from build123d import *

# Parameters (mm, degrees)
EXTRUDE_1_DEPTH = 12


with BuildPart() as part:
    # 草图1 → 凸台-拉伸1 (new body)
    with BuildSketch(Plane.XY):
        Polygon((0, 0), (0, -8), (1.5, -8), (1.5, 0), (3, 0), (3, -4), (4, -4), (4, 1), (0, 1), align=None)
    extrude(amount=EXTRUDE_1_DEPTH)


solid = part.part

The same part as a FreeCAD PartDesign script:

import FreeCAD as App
import Part
import Sketcher

V = App.Vector


def add_polygon(sketch, points):
    """Adds a closed chain of lines whose ends are joined by coincident constraints."""
    first, n = sketch.GeometryCount, len(points)
    for a, b in zip(points, points[1:] + points[:1]):
        sketch.addGeometry(Part.LineSegment(App.Vector(*a, 0), App.Vector(*b, 0)), False)
    for i in range(n):
        sketch.addConstraint(Sketcher.Constraint("Coincident", first + i, 2, first + (i + 1) % n, 1))

doc = App.newDocument("Part")
params = doc.addObject("Spreadsheet::Sheet", "Params")
for row, (alias, value) in enumerate([
    ("sketch1_width", "1 mm"),
    ("sketch1_width2", "4 mm"),
    ("sketch1_height", "8 mm"),
    ("sketch1_height2", "5 mm"),
    ("pad1_length", "12 mm"),
], start=1):
    params.set(f"A{row}", alias)
    params.set(f"B{row}", "=" + value)
    params.setAlias(f"B{row}", alias)

body = doc.addObject("PartDesign::Body", "Body")

# Sketch on XY plane
sketch1 = body.newObject("Sketcher::SketchObject", "Sketch")
sketch1.AttachmentSupport = (doc.getObject("XY_Plane"), [""])
sketch1.MapMode = "FlatFace"
add_polygon(sketch1, [(0, -8), (1.5, -8), (1.5, 0), (3, 0), (3, -4), (4, -4), (4, 1), (0, 1)])  # lines 0-7
sketch1.addConstraint(Sketcher.Constraint("Horizontal", 0))
sketch1.addConstraint(Sketcher.Constraint("Vertical", 1))
sketch1.addConstraint(Sketcher.Constraint("Horizontal", 2))
sketch1.addConstraint(Sketcher.Constraint("Vertical", 3))
sketch1.addConstraint(Sketcher.Constraint("Horizontal", 4))
sketch1.addConstraint(Sketcher.Constraint("Vertical", 5))
sketch1.addConstraint(Sketcher.Constraint("Horizontal", 6))
sketch1.addConstraint(Sketcher.Constraint("Vertical", 7))
sketch1.addConstraint(Sketcher.Constraint("PointOnObject", 1, 2, -1))
sketch1.addConstraint(Sketcher.Constraint("PointOnObject", 6, 2, -2))
sketch1.addConstraint(Sketcher.Constraint("Equal", 0, 2))
sketch1.addConstraint(Sketcher.Constraint("Equal", 6, 3))
sketch1.addConstraint(Sketcher.Constraint("DistanceX", 4, 1, 4, 2, 1.0))
sketch1.addConstraint(Sketcher.Constraint("DistanceX", 6, 2, 6, 1, 4.0))
sketch1.addConstraint(Sketcher.Constraint("DistanceY", 1, 1, 1, 2, 8.0))
sketch1.addConstraint(Sketcher.Constraint("DistanceY", 5, 1, 5, 2, 5.0))
sketch1.setExpression("Constraints[20]", "Params.sketch1_width")
sketch1.setExpression("Constraints[21]", "Params.sketch1_width2")
sketch1.setExpression("Constraints[22]", "Params.sketch1_height")
sketch1.setExpression("Constraints[23]", "Params.sketch1_height2")
pad1 = body.newObject("PartDesign::Pad", "Pad")
pad1.Profile = sketch1
pad1.setExpression("Length", "Params.pad1_length")

doc.recompute()
